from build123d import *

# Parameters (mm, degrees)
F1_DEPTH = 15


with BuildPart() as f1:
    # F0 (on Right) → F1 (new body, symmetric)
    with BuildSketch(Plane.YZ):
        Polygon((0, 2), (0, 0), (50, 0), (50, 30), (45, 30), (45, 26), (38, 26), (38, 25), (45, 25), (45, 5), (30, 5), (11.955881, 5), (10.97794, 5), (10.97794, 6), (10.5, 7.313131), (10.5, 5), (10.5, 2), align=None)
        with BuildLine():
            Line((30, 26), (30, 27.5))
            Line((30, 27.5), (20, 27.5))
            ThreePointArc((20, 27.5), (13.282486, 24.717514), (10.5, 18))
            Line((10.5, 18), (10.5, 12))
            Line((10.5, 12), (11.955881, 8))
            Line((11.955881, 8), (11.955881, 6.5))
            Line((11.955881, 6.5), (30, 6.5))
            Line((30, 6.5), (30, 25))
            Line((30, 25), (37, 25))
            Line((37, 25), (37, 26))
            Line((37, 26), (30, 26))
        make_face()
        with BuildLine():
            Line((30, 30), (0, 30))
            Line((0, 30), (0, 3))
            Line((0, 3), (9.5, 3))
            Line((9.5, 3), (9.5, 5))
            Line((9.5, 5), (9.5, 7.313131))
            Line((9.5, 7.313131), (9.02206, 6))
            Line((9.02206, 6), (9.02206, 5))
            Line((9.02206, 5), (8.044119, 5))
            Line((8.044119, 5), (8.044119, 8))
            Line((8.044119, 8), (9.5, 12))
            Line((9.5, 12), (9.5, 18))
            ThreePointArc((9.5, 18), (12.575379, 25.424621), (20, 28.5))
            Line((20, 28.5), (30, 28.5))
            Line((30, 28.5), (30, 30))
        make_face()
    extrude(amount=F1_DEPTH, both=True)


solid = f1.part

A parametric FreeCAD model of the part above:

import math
import FreeCAD as App
import Part
import Sketcher
from FreeCAD import Vector
Q = App.Units.Quantity

doc = App.newDocument("Part")
body = doc.addObject("PartDesign::Body", "Body")
body.AllowCompound = True

# Sketch on YZ plane
sketch1 = body.newObject("Sketcher::SketchObject", "Sketch")
sketch1.AttachmentSupport = (doc.getObject("YZ_Plane"), [""])
sketch1.MapMode = "FlatFace"
sketch1.addGeometry(Part.LineSegment(Vector(0, 2, 0), Vector(0, 0, 0)), False)
sketch1.addGeometry(Part.LineSegment(Vector(0, 0, 0), Vector(50, 0, 0)), False)
sketch1.addGeometry(Part.LineSegment(Vector(50, 0, 0), Vector(50, 30, 0)), False)
sketch1.addGeometry(Part.LineSegment(Vector(50, 30, 0), Vector(45, 30, 0)), False)
sketch1.addGeometry(Part.LineSegment(Vector(45, 30, 0), Vector(45, 26, 0)), False)
sketch1.addGeometry(Part.LineSegment(Vector(45, 26, 0), Vector(38, 26, 0)), False)
sketch1.addGeometry(Part.LineSegment(Vector(38, 26, 0), Vector(38, 25, 0)), False)
sketch1.addGeometry(Part.LineSegment(Vector(38, 25, 0), Vector(45, 25, 0)), False)
sketch1.addGeometry(Part.LineSegment(Vector(45, 25, 0), Vector(45, 5, 0)), False)
sketch1.addGeometry(Part.LineSegment(Vector(45, 5, 0), Vector(11, 5, 0)), False)
sketch1.addGeometry(Part.LineSegment(Vector(11, 5, 0), Vector(11, 6, 0)), False)
sketch1.addGeometry(Part.LineSegment(Vector(11, 6, 0), Vector(10.5, 7.3, 0)), False)
sketch1.addGeometry(Part.LineSegment(Vector(10.5, 7.3, 0), Vector(10.5, 2, 0)), False)
sketch1.addGeometry(Part.LineSegment(Vector(10.5, 2, 0), Vector(0, 2, 0)), False)
sketch1.addGeometry(Part.LineSegment(Vector(30, 26, 0), Vector(30, 27.5, 0)), False)
sketch1.addGeometry(Part.LineSegment(Vector(30, 27.5, 0), Vector(20, 27.5, 0)), False)
sketch1.addGeometry(Part.ArcOfCircle(Part.Circle(Vector(20, 18, 0), Vector(0, 0, 1), 9.5), math.radians(90), math.radians(180)), False)
sketch1.addGeometry(Part.LineSegment(Vector(10.5, 18, 0), Vector(10.5, 12, 0)), False)
sketch1.addGeometry(Part.LineSegment(Vector(10.5, 12, 0), Vector(12, 8, 0)), False)
sketch1.addGeometry(Part.LineSegment(Vector(12, 8, 0), Vector(12, 6.5, 0)), False)
sketch1.addGeometry(Part.LineSegment(Vector(12, 6.5, 0), Vector(30, 6.5, 0)), False)
sketch1.addGeometry(Part.LineSegment(Vector(30, 6.5, 0), Vector(30, 25, 0)), False)
sketch1.addGeometry(Part.LineSegment(Vector(30, 25, 0), Vector(37, 25, 0)), False)
sketch1.addGeometry(Part.LineSegment(Vector(37, 25, 0), Vector(37, 26, 0)), False)
sketch1.addGeometry(Part.LineSegment(Vector(37, 26, 0), Vector(30, 26, 0)), False)
sketch1.addGeometry(Part.LineSegment(Vector(30, 30, 0), Vector(0, 30, 0)), False)
sketch1.addGeometry(Part.LineSegment(Vector(0, 30, 0), Vector(0, 3, 0)), False)
sketch1.addGeometry(Part.LineSegment(Vector(0, 3, 0), Vector(9.5, 3, 0)), False)
sketch1.addGeometry(Part.LineSegment(Vector(9.5, 3, 0), Vector(9.5, 7.3, 0)), False)
sketch1.addGeometry(Part.LineSegment(Vector(9.5, 7.3, 0), Vector(9, 6, 0)), False)
sketch1.addGeometry(Part.LineSegment(Vector(9, 6, 0), Vector(9, 5, 0)), False)
sketch1.addGeometry(Part.LineSegment(Vector(9, 5, 0), Vector(8, 5, 0)), False)
sketch1.addGeometry(Part.LineSegment(Vector(8, 5, 0), Vector(8, 8, 0)), False)
sketch1.addGeometry(Part.LineSegment(Vector(8, 8, 0), Vector(9.5, 12, 0)), False)
sketch1.addGeometry(Part.LineSegment(Vector(9.5, 12, 0), Vector(9.5, 18, 0)), False)
sketch1.addGeometry(Part.ArcOfCircle(Part.Circle(Vector(20, 18, 0), Vector(0, 0, 1), 10.5), math.radians(90), math.radians(180)), False)
sketch1.addGeometry(Part.LineSegment(Vector(20, 28.5, 0), Vector(30, 28.5, 0)), False)
sketch1.addGeometry(Part.LineSegment(Vector(30, 28.5, 0), Vector(30, 30, 0)), False)
sketch1.addConstraint(Sketcher.Constraint("Coincident", 0, 2, 1, 1))
sketch1.addConstraint(Sketcher.Constraint("Coincident", 1, 2, 2, 1))
sketch1.addConstraint(Sketcher.Constraint("Coincident", 2, 2, 3, 1))
sketch1.addConstraint(Sketcher.Constraint("Coincident", 3, 2, 4, 1))
sketch1.addConstraint(Sketcher.Constraint("Coincident", 4, 2, 5, 1))
sketch1.addConstraint(Sketcher.Constraint("Coincident", 5, 2, 6, 1))
sketch1.addConstraint(Sketcher.Constraint("Coincident", 6, 2, 7, 1))
sketch1.addConstraint(Sketcher.Constraint("Coincident", 7, 2, 8, 1))
sketch1.addConstraint(Sketcher.Constraint("Coincident", 8, 2, 9, 1))
sketch1.addConstraint(Sketcher.Constraint("Coincident", 9, 2, 10, 1))
sketch1.addConstraint(Sketcher.Constraint("Coincident", 10, 2, 11, 1))
sketch1.addConstraint(Sketcher.Constraint("Coincident", 11, 2, 12, 1))
sketch1.addConstraint(Sketcher.Constraint("Coincident", 12, 2, 13, 1))
sketch1.addConstraint(Sketcher.Constraint("Coincident", 13, 2, 0, 1))
sketch1.addConstraint(Sketcher.Constraint("Coincident", 14, 2, 15, 1))
sketch1.addConstraint(Sketcher.Constraint("Tangent", 15, 2, 16, 1))
sketch1.addConstraint(Sketcher.Constraint("Tangent", 16, 2, 17, 1))
sketch1.addConstraint(Sketcher.Constraint("Coincident", 17, 2, 18, 1))
sketch1.addConstraint(Sketcher.Constraint("Coincident", 18, 2, 19, 1))
sketch1.addConstraint(Sketcher.Constraint("Coincident", 19, 2, 20, 1))
sketch1.addConstraint(Sketcher.Constraint("Coincident", 20, 2, 21, 1))
sketch1.addConstraint(Sketcher.Constraint("Coincident", 21, 2, 22, 1))
sketch1.addConstraint(Sketcher.Constraint("Coincident", 22, 2, 23, 1))
sketch1.addConstraint(Sketcher.Constraint("Coincident", 23, 2, 24, 1))
sketch1.addConstraint(Sketcher.Constraint("Coincident", 24, 2, 14, 1))
sketch1.addConstraint(Sketcher.Constraint("Coincident", 25, 2, 26, 1))
sketch1.addConstraint(Sketcher.Constraint("Coincident", 26, 2, 27, 1))
sketch1.addConstraint(Sketcher.Constraint("Coincident", 27, 2, 28, 1))
sketch1.addConstraint(Sketcher.Constraint("Coincident", 28, 2, 29, 1))
sketch1.addConstraint(Sketcher.Constraint("Coincident", 29, 2, 30, 1))
sketch1.addConstraint(Sketcher.Constraint("Coincident", 30, 2, 31, 1))
sketch1.addConstraint(Sketcher.Constraint("Coincident", 31, 2, 32, 1))
sketch1.addConstraint(Sketcher.Constraint("Coincident", 32, 2, 33, 1))
sketch1.addConstraint(Sketcher.Constraint("Coincident", 33, 2, 34, 1))
sketch1.addConstraint(Sketcher.Constraint("Tangent", 34, 2, 35, 2))
sketch1.addConstraint(Sketcher.Constraint("Tangent", 35, 1, 36, 1))
sketch1.addConstraint(Sketcher.Constraint("Coincident", 36, 2, 37, 1))
sketch1.addConstraint(Sketcher.Constraint("Coincident", 37, 2, 25, 1))
sketch1.addConstraint(Sketcher.Constraint("Vertical", 0))
sketch1.addConstraint(Sketcher.Constraint("Horizontal", 1))
sketch1.addConstraint(Sketcher.Constraint("Vertical", 2))
sketch1.addConstraint(Sketcher.Constraint("Horizontal", 3))
sketch1.addConstraint(Sketcher.Constraint("Vertical", 4))
sketch1.addConstraint(Sketcher.Constraint("Horizontal", 5))
sketch1.addConstraint(Sketcher.Constraint("Vertical", 6))
sketch1.addConstraint(Sketcher.Constraint("Horizontal", 7))
sketch1.addConstraint(Sketcher.Constraint("Vertical", 8))
sketch1.addConstraint(Sketcher.Constraint("Horizontal", 9))
sketch1.addConstraint(Sketcher.Constraint("Vertical", 10))
sketch1.addConstraint(Sketcher.Constraint("Vertical", 12))
sketch1.addConstraint(Sketcher.Constraint("Horizontal", 13))
sketch1.addConstraint(Sketcher.Constraint("Vertical", 14))
sketch1.addConstraint(Sketcher.Constraint("Horizontal", 15))
sketch1.addConstraint(Sketcher.Constraint("Vertical", 17))
sketch1.addConstraint(Sketcher.Constraint("Vertical", 19))
sketch1.addConstraint(Sketcher.Constraint("Horizontal", 20))
sketch1.addConstraint(Sketcher.Constraint("Vertical", 21))
sketch1.addConstraint(Sketcher.Constraint("Horizontal", 22))
sketch1.addConstraint(Sketcher.Constraint("Vertical", 23))
sketch1.addConstraint(Sketcher.Constraint("Horizontal", 24))
sketch1.addConstraint(Sketcher.Constraint("Horizontal", 25))
sketch1.addConstraint(Sketcher.Constraint("Vertical", 26))
sketch1.addConstraint(Sketcher.Constraint("Horizontal", 27))
sketch1.addConstraint(Sketcher.Constraint("Vertical", 28))
sketch1.addConstraint(Sketcher.Constraint("Vertical", 30))
sketch1.addConstraint(Sketcher.Constraint("Horizontal", 31))
sketch1.addConstraint(Sketcher.Constraint("Vertical", 32))
sketch1.addConstraint(Sketcher.Constraint("Vertical", 34))
sketch1.addConstraint(Sketcher.Constraint("Horizontal", 36))
sketch1.addConstraint(Sketcher.Constraint("Vertical", 37))
sketch1.addConstraint(Sketcher.Constraint("Coincident", 0, 2, -1, 1))
sketch1.addConstraint(Sketcher.Constraint("Coincident", 35, 3, 16, 3))
sketch1.addConstraint(Sketcher.Constraint("PointOnObject", 25, 2, -2))
sketch1.addConstraint(Sketcher.Constraint("Parallel", 11, 18))
sketch1.addConstraint(Sketcher.Constraint("Parallel", 29, 33))
sketch1.addConstraint(Sketcher.Constraint("Horizontal", 7, 2, 21, 2))
sketch1.addConstraint(Sketcher.Constraint("Horizontal", 5, 2, 23, 2))
sketch1.addConstraint(Sketcher.Constraint("Horizontal", 3, 2, 25, 2))
sketch1.addConstraint(Sketcher.Constraint("Horizontal", 11, 2, 28, 2))
sketch1.addConstraint(Sketcher.Constraint("Horizontal", 10, 2, 29, 2))
sketch1.addConstraint(Sketcher.Constraint("Horizontal", 9, 2, 30, 2))
sketch1.addConstraint(Sketcher.Constraint("Horizontal", 18, 2, 32, 2))
sketch1.addConstraint(Sketcher.Constraint("Horizontal", 17, 2, 33, 2))
sketch1.addConstraint(Sketcher.Constraint("Vertical", 4, 2, 7, 2))
sketch1.addConstraint(Sketcher.Constraint("Vertical", 12, 2, 16, 2))
sketch1.addConstraint(Sketcher.Constraint("Vertical", 14, 2, 20, 2))
sketch1.addConstraint(Sketcher.Constraint("Vertical", 28, 2, 33, 2))
sketch1.addConstraint(Sketcher.Constraint("Vertical", 24, 2, 36, 2))
sketch1.addConstraint(Sketcher.Constraint("Equal", 7, 22))
sketch1.addConstraint(Sketcher.Constraint("Equal", 25, 2))
sketch1.addConstraint(Sketcher.Constraint("Equal", 6, 10))
sketch1.addConstraint(Sketcher.Constraint("Equal", 14, 19))
sketch1.addConstraint(Sketcher.Constraint("Equal", 19, 37))
sketch1.addConstraint(Sketcher.Constraint("Equal", 11, 29))
sketch1.addConstraint(Sketcher.Constraint("Radius", 16, Q("9.500001 mm")))
sketch1.addConstraint(Sketcher.Constraint("Radius", 35, Q("10.500001 mm")))
sketch1.addConstraint(Sketcher.Constraint("DistanceX", 1, 1, 1, 2, Q("50 mm")))
sketch1.addConstraint(Sketcher.Constraint("DistanceX", 3, 2, 3, 1, Q("5 mm")))
sketch1.addConstraint(Sketcher.Constraint("DistanceX", 5, 2, 5, 1, Q("7 mm")))
sketch1.addConstraint(Sketcher.Constraint("DistanceX", 15, 2, 15, 1, Q("10 mm")))
sketch1.addConstraint(Sketcher.Constraint("DistanceX", 25, 2, 25, 1, Q("30 mm")))
sketch1.addConstraint(Sketcher.Constraint("DistanceY", 0, 2, 0, 1, Q("2 mm")))
sketch1.addConstraint(Sketcher.Constraint("DistanceY", 4, 2, 4, 1, Q("4 mm")))
sketch1.addConstraint(Sketcher.Constraint("DistanceY", 6, 2, 6, 1, Q("1 mm")))
sketch1.addConstraint(Sketcher.Constraint("DistanceY", 8, 2, 8, 1, Q("20 mm")))
sketch1.addConstraint(Sketcher.Constraint("DistanceY", 17, 2, 17, 1, Q("6 mm")))
sketch1.addConstraint(Sketcher.Constraint("DistanceY", 26, 2, 26, 1, Q("27 mm")))
sketch1.addConstraint(Sketcher.Constraint("DistanceY", 32, 1, 32, 2, Q("3 mm")))
sketch1.addConstraint(Sketcher.Constraint("Angle", 18, Q("-69.999999 deg")))
sketch1.addConstraint(Sketcher.Constraint("DistanceX", 9, 2, 9, 1, Q("34.02206 mm")))
pad1 = body.newObject("PartDesign::Pad", "Pad")
pad1.Profile = sketch1
pad1.Length = 30
pad1.Midplane = True

doc.recompute()
